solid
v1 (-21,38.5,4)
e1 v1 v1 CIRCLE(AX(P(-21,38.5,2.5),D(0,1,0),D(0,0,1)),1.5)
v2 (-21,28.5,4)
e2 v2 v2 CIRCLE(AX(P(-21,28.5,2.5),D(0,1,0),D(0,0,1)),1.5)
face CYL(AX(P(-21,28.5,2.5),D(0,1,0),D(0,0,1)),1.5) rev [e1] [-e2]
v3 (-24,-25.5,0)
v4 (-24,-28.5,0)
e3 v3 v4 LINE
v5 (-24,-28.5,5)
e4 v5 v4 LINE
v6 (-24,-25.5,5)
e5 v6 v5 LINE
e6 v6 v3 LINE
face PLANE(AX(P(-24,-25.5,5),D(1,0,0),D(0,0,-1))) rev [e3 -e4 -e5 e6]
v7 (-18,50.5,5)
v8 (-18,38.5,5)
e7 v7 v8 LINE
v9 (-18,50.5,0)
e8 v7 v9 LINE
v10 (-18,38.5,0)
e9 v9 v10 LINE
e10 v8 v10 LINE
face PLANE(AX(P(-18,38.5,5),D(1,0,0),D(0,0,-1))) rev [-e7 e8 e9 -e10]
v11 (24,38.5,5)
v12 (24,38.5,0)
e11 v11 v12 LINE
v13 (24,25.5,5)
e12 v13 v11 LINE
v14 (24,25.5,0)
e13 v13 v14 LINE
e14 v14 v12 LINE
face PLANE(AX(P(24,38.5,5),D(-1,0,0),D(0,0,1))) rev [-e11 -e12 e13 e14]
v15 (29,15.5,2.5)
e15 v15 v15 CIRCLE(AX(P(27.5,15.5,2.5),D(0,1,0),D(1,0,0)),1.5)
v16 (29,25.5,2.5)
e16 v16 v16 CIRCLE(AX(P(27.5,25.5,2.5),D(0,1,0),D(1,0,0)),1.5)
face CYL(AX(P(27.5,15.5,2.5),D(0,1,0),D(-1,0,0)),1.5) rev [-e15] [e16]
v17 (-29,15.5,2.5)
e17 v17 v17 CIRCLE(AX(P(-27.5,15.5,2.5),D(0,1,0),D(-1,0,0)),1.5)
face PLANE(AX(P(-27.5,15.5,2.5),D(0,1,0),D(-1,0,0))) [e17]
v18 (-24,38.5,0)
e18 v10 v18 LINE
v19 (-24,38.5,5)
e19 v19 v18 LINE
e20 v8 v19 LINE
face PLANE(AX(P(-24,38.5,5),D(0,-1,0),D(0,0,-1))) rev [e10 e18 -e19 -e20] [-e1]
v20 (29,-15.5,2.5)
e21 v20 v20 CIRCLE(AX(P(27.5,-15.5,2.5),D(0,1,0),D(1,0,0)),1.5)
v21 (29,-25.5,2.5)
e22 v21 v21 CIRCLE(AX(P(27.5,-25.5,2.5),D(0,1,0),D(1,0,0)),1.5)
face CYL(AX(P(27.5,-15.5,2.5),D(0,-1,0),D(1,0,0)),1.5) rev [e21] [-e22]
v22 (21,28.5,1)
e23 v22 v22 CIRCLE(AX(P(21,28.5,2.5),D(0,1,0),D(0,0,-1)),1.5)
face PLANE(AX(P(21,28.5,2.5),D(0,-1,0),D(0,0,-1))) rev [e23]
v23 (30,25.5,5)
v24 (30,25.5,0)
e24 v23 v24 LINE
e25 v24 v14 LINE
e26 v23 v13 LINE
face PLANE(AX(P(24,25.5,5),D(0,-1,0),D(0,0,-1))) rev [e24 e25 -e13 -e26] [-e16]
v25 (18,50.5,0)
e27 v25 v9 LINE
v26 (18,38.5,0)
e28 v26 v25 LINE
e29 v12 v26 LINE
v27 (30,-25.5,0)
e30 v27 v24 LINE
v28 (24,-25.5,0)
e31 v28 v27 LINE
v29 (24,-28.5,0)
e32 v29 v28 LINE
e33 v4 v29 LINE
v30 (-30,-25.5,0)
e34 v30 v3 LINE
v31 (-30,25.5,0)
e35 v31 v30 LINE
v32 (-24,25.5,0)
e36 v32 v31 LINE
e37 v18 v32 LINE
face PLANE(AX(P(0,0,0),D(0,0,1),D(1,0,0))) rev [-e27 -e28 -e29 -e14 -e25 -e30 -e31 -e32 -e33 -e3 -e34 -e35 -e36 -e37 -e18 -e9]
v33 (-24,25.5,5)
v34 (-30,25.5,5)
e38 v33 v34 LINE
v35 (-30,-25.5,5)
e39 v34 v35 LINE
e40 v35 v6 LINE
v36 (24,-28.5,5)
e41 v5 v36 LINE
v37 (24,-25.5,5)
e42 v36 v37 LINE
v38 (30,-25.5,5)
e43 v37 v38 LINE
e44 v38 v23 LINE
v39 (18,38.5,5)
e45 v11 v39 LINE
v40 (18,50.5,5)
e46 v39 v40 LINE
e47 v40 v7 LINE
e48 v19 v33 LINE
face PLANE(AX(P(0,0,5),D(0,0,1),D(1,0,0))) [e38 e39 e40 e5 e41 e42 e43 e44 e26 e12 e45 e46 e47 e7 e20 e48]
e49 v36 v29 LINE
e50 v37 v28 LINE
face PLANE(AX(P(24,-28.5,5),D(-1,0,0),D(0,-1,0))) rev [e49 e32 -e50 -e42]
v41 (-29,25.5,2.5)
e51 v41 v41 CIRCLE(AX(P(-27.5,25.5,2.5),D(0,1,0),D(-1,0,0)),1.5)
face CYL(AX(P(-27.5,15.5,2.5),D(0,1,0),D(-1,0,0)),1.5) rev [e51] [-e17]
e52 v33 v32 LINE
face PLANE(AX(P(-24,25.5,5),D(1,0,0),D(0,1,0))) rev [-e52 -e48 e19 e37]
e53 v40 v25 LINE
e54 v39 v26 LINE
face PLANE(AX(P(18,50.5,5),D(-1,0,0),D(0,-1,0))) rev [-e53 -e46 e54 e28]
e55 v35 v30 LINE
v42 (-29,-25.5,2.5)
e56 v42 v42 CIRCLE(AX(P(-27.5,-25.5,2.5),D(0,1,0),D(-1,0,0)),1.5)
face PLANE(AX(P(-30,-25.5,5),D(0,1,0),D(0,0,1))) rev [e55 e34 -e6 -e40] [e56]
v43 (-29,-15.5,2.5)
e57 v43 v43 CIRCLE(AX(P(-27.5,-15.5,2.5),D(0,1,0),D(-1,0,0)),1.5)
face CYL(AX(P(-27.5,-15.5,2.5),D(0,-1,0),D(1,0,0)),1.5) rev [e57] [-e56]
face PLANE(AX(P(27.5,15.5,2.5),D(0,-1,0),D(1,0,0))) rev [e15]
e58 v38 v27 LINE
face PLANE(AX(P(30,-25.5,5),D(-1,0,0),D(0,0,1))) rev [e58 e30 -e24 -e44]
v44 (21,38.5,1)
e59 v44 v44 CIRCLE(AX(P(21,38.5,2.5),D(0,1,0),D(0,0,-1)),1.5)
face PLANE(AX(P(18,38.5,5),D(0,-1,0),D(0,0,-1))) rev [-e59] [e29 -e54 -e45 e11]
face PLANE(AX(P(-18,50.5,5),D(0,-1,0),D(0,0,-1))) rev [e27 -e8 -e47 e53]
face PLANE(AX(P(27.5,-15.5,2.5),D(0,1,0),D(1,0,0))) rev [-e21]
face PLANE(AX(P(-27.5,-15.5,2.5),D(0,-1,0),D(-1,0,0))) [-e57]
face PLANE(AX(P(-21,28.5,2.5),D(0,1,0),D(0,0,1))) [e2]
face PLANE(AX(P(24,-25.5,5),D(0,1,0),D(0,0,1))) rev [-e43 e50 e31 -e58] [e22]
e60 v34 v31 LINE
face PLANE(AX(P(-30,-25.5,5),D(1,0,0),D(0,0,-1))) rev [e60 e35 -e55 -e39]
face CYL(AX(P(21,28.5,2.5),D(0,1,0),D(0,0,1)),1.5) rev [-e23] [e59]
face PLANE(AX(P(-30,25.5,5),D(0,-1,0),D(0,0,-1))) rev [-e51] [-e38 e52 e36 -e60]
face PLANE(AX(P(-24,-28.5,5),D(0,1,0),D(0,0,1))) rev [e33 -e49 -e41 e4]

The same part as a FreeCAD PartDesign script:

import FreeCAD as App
import Part
import Sketcher

V = App.Vector
Q = App.Units.Quantity


def add_polygon(sketch, points):
    """Adds a closed chain of lines whose ends are joined by coincident constraints."""
    first, n = sketch.GeometryCount, len(points)
    for a, b in zip(points, points[1:] + points[:1]):
        sketch.addGeometry(Part.LineSegment(App.Vector(*a, 0), App.Vector(*b, 0)), False)
    for i in range(n):
        sketch.addConstraint(Sketcher.Constraint("Coincident", first + i, 2, first + (i + 1) % n, 1))

doc = App.newDocument("Part")
body = doc.addObject("PartDesign::Body", "Body")

sketch1 = body.newObject("Sketcher::SketchObject", "Sketch")
sketch1.AttachmentSupport = (doc.getObject("XY_Plane"), [""])
sketch1.MapMode = "FlatFace"
add_polygon(sketch1, [(30, -25.5), (30, 25.5), (24, 25.5), (24, 38.5), (18, 38.5), (18, 50.5), (-18, 50.5), (-18, 38.5), (-24, 38.5), (-24, 25.5), (-30, 25.5), (-30, -25.5), (-24, -25.5), (-24, -28.5), (24, -28.5), (24, -25.5)])
sketch1.addConstraint([
    Sketcher.Constraint("Vertical", 0),
    Sketcher.Constraint("Horizontal", 1),
    Sketcher.Constraint("Vertical", 2),
    Sketcher.Constraint("Horizontal", 3),
    Sketcher.Constraint("Vertical", 4),
    Sketcher.Constraint("Horizontal", 5),
    Sketcher.Constraint("Vertical", 6),
    Sketcher.Constraint("Horizontal", 7),
    Sketcher.Constraint("Vertical", 8),
    Sketcher.Constraint("Horizontal", 9),
    Sketcher.Constraint("Vertical", 10),
    Sketcher.Constraint("Horizontal", 11),
    Sketcher.Constraint("Vertical", 12),
    Sketcher.Constraint("Horizontal", 13),
    Sketcher.Constraint("Vertical", 14),
    Sketcher.Constraint("Horizontal", 15),
    Sketcher.Constraint("Symmetric", 0, 2, 10, 2, -1, 1),
    Sketcher.Constraint("Symmetric", 8, 2, 14, 2, -1, 1),
    Sketcher.Constraint("Symmetric", 3, 2, 6, 2, -2),
    Sketcher.Constraint("Symmetric", 1, 2, 8, 2, -2),
    Sketcher.Constraint("Vertical", 8, 2, 11, 2),
    Sketcher.Constraint("Equal", 1, 3),
    Sketcher.Constraint("DistanceX", 1, 2, 1, 1, Q("6 mm")),
    Sketcher.Constraint("DistanceX", 5, 2, 5, 1, Q("36 mm")),
    Sketcher.Constraint("DistanceY", 0, 1, 0, 2, Q("51 mm")),
    Sketcher.Constraint("DistanceY", 2, 1, 2, 2, Q("13 mm")),
    Sketcher.Constraint("DistanceY", 4, 1, 4, 2, Q("12 mm")),
    Sketcher.Constraint("DistanceY", 12, 2, 12, 1, Q("3 mm")),
])
pad1 = body.newObject("PartDesign::Pad", "Pad")
pad1.Profile = sketch1
pad1.Length = 5

sketch2 = body.newObject("Sketcher::SketchObject", "Sketch001")
sketch2.AttachmentSupport = (doc.getObject("XZ_Plane"), [""])
sketch2.MapMode = "FlatFace"
sketch2.AttachmentOffset = App.Placement(V(0, 0, -25.5), App.Rotation())
sketch2.addGeometry([
    Part.Circle(V(-27.5, 2.5, 0), V(0, 0, 1), 1.5),
    Part.Circle(V(27.5, 2.5, 0), V(0, 0, 1), 1.5),
], False)
sketch2.addConstraint([
    Sketcher.Constraint("Equal", 0, 1),
    Sketcher.Constraint("Symmetric", 0, 3, 1, 3, -2),
    Sketcher.Constraint("Diameter", 0, Q("3 mm")),
    Sketcher.Constraint("DistanceX", 0, 3, 1, 3, Q("55 mm")),
    Sketcher.Constraint("DistanceY", -1, 1, 0, 3, Q("2.5 mm")),
])
pocket1 = body.newObject("PartDesign::Pocket", "Pocket")
pocket1.Profile = sketch2
pocket1.Length = 10
pocket1.Reversed = True
doc.recompute()

mirrored = body.newObject("PartDesign::Mirrored", "Mirrored")
mirrored.Originals = [pocket1]
mirrored.MirrorPlane = (doc.getObject("XZ_Plane"), [""])
body.Tip = mirrored

sketch3 = body.newObject("Sketcher::SketchObject", "Sketch002")
sketch3.AttachmentSupport = (doc.getObject("XZ_Plane"), [""])
sketch3.MapMode = "FlatFace"
sketch3.AttachmentOffset = App.Placement(V(0, 0, -38.5), App.Rotation())
sketch3.addGeometry([
    Part.Circle(V(-21, 2.5, 0), V(0, 0, 1), 1.5),
    Part.Circle(V(21, 2.5, 0), V(0, 0, 1), 1.5),
], False)
sketch3.addConstraint([
    Sketcher.Constraint("Equal", 0, 1),
    Sketcher.Constraint("Symmetric", 0, 3, 1, 3, -2),
    Sketcher.Constraint("Diameter", 0, Q("3 mm")),
    Sketcher.Constraint("DistanceX", 0, 3, -1, 1, Q("21 mm")),
    Sketcher.Constraint("DistanceY", -1, 1, 0, 3, Q("2.5 mm")),
])
pocket2 = body.newObject("PartDesign::Pocket", "Pocket001")
pocket2.Profile = sketch3
pocket2.Length = 10
pocket2.Reversed = True

doc.recompute()
